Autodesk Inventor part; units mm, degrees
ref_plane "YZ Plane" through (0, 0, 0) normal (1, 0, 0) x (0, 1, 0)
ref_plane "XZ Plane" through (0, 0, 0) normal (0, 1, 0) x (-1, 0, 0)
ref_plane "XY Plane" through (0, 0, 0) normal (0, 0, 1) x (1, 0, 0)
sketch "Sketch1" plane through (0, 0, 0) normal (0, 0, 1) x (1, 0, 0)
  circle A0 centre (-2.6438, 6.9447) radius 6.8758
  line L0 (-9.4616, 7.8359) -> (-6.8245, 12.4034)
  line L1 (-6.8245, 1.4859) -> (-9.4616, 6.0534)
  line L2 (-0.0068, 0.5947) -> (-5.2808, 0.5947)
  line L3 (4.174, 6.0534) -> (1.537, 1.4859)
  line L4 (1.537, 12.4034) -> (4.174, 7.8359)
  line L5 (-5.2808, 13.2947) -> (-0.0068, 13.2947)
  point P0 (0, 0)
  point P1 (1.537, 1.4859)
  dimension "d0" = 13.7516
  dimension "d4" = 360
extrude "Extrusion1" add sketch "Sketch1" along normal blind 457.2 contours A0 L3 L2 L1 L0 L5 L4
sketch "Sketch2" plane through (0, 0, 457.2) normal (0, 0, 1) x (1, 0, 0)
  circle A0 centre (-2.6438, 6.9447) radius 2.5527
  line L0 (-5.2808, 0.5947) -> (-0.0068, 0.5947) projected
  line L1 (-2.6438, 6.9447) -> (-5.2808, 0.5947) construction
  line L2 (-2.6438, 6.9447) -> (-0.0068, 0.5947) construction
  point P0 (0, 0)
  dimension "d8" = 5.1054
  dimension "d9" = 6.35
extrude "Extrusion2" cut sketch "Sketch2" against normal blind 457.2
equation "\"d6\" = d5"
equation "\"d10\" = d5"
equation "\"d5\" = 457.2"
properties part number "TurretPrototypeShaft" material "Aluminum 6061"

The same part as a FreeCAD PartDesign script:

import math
import FreeCAD as App
import Part
import Sketcher

V = App.Vector
Q = App.Units.Quantity

doc = App.newDocument("Part")
body = doc.addObject("PartDesign::Body", "Body")

sketch1 = body.newObject("Sketcher::SketchObject", "Sketch")
sketch1.AttachmentSupport = (doc.getObject("XY_Plane"), [""])
sketch1.MapMode = "FlatFace"
sketch1.addGeometry(Part.ArcOfCircle(Part.Circle(V(-2.6, 6.9, 0), V(0, 0, 1), 6.9), math.radians(-7.45), math.radians(7.45)), False)
sketch1.addGeometry(Part.LineSegment(V(4.2, 7.8, 0), V(1.5, 12.4, 0)), False)
sketch1.addGeometry(Part.ArcOfCircle(Part.Circle(V(-2.6, 6.9, 0), V(0, 0, 1), 6.9), math.radians(52.55), math.radians(67.45)), False)
sketch1.addGeometry(Part.LineSegment(V(0, 13.3, 0), V(-5.3, 13.3, 0)), False)
sketch1.addGeometry(Part.ArcOfCircle(Part.Circle(V(-2.6, 6.9, 0), V(0, 0, 1), 6.9), math.radians(112.55), math.radians(127.45)), False)
sketch1.addGeometry(Part.LineSegment(V(-6.8, 12.4, 0), V(-9.5, 7.8, 0)), False)
sketch1.addGeometry(Part.ArcOfCircle(Part.Circle(V(-2.6, 6.9, 0), V(0, 0, 1), 6.9), math.radians(172.55), math.radians(187.45)), False)
sketch1.addGeometry(Part.LineSegment(V(-9.5, 6.1, 0), V(-6.8, 1.5, 0)), False)
sketch1.addGeometry(Part.ArcOfCircle(Part.Circle(V(-2.6, 6.9, 0), V(0, 0, 1), 6.9), math.radians(-127.45), math.radians(-112.55)), False)
sketch1.addGeometry(Part.LineSegment(V(-5.3, 0.6, 0), V(0, 0.6, 0)), False)
sketch1.addGeometry(Part.ArcOfCircle(Part.Circle(V(-2.6, 6.9, 0), V(0, 0, 1), 6.9), math.radians(-67.45), math.radians(-52.55)), False)
sketch1.addGeometry(Part.LineSegment(V(1.5, 1.5, 0), V(4.2, 6.1, 0)), False)
sketch1.addConstraint(Sketcher.Constraint("Coincident", 0, 2, 1, 1))
sketch1.addConstraint(Sketcher.Constraint("Coincident", 1, 2, 2, 1))
sketch1.addConstraint(Sketcher.Constraint("Coincident", 2, 2, 3, 1))
sketch1.addConstraint(Sketcher.Constraint("Coincident", 3, 2, 4, 1))
sketch1.addConstraint(Sketcher.Constraint("Coincident", 4, 2, 5, 1))
sketch1.addConstraint(Sketcher.Constraint("Coincident", 5, 2, 6, 1))
sketch1.addConstraint(Sketcher.Constraint("Coincident", 6, 2, 7, 1))
sketch1.addConstraint(Sketcher.Constraint("Coincident", 7, 2, 8, 1))
sketch1.addConstraint(Sketcher.Constraint("Coincident", 8, 2, 9, 1))
sketch1.addConstraint(Sketcher.Constraint("Coincident", 9, 2, 10, 1))
sketch1.addConstraint(Sketcher.Constraint("Coincident", 10, 2, 11, 1))
sketch1.addConstraint(Sketcher.Constraint("Coincident", 11, 2, 0, 1))
sketch1.addConstraint(Sketcher.Constraint("Horizontal", 3))
sketch1.addConstraint(Sketcher.Constraint("Horizontal", 9))
sketch1.addConstraint(Sketcher.Constraint("Coincident", 2, 3, 0, 3))
sketch1.addConstraint(Sketcher.Constraint("Coincident", 4, 3, 0, 3))
sketch1.addConstraint(Sketcher.Constraint("Coincident", 6, 3, 0, 3))
sketch1.addConstraint(Sketcher.Constraint("Coincident", 8, 3, 0, 3))
sketch1.addConstraint(Sketcher.Constraint("Coincident", 10, 3, 0, 3))
sketch1.addConstraint(Sketcher.Constraint("Equal", 0, 2))
sketch1.addConstraint(Sketcher.Constraint("Equal", 2, 4))
sketch1.addConstraint(Sketcher.Constraint("Equal", 4, 6))
sketch1.addConstraint(Sketcher.Constraint("Equal", 6, 8))
sketch1.addConstraint(Sketcher.Constraint("Equal", 8, 10))
sketch1.addConstraint(Sketcher.Constraint("Parallel", 1, 7))
sketch1.addConstraint(Sketcher.Constraint("Parallel", 5, 11))
sketch1.addConstraint(Sketcher.Constraint("Horizontal", 1, 2, 4, 2))
sketch1.addConstraint(Sketcher.Constraint("Horizontal", 0, 2, 5, 2))
sketch1.addConstraint(Sketcher.Constraint("Horizontal", 7, 2, 10, 2))
sketch1.addConstraint(Sketcher.Constraint("Vertical", 5, 2, 6, 2))
sketch1.addConstraint(Sketcher.Constraint("Vertical", 3, 2, 8, 2))
sketch1.addConstraint(Sketcher.Constraint("Radius", 0, Q("0.2707 in")))
sketch1.addConstraint(Sketcher.Constraint("Angle", 1, Q("119.9996 deg")))
sketch1.addConstraint(Sketcher.Constraint("DistanceY", 0, 3, 2, 2, Q("0.25 in")))
sketch1.addConstraint(Sketcher.Constraint("DistanceY", 10, 2, 0, 2, Q("0.25 in")))
sketch1.addConstraint(Sketcher.Constraint("DistanceY", -1, 1, 0, 2, Q("0.3085 in")))
sketch1.addConstraint(Sketcher.Constraint("DistanceX", -1, 1, 1, 2, Q("0.0605 in")))
pad1 = body.newObject("PartDesign::Pad", "Pad")
pad1.Profile = sketch1
pad1.Length = Q("18 in")

sketch2 = body.newObject("Sketcher::SketchObject", "Sketch001")
sketch2.AttachmentSupport = (doc.getObject("XY_Plane"), [""])
sketch2.MapMode = "FlatFace"
sketch2.AttachmentOffset = App.Placement(V(0, 0, 18 * 25.4), App.Rotation())
sketch2.addGeometry(Part.Circle(V(-2.6, 6.9, 0), V(0, 0, 1), 2.6), False)
sketch2.addConstraint(Sketcher.Constraint("Diameter", 0, Q("0.201 in")))
sketch2.addConstraint(Sketcher.Constraint("DistanceX", 0, 3, -1, 1, Q("2.6438 mm")))
sketch2.addConstraint(Sketcher.Constraint("DistanceY", -1, 1, 0, 3, Q("6.9447 mm")))
pocket1 = body.newObject("PartDesign::Pocket", "Pocket")
pocket1.Profile = sketch2
pocket1.Length = Q("18 in")

doc.recompute()
